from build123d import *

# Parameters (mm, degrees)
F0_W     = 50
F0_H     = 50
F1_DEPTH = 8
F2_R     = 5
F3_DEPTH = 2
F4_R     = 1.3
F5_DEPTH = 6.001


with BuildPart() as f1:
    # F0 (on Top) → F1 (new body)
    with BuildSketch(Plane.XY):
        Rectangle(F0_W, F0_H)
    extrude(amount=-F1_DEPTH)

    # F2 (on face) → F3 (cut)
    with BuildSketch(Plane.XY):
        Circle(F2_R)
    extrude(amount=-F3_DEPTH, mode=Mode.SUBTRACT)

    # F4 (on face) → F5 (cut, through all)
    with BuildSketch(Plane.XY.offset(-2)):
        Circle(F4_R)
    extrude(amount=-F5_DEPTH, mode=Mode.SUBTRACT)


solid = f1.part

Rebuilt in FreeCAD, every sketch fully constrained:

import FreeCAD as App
import Part
import Sketcher
from FreeCAD import Vector


def add_polygon(sketch, points):
    """Adds a closed chain of lines whose ends are joined by coincident constraints."""
    first, n = sketch.GeometryCount, len(points)
    for a, b in zip(points, points[1:] + points[:1]):
        sketch.addGeometry(Part.LineSegment(App.Vector(*a, 0), App.Vector(*b, 0)), False)
    for i in range(n):
        sketch.addConstraint(Sketcher.Constraint("Coincident", first + i, 2, first + (i + 1) % n, 1))

doc = App.newDocument("Part")
body = doc.addObject("PartDesign::Body", "Body")

# Sketch on XY plane
sketch1 = doc.addObject("Sketcher::SketchObject", "Sketch")
body.addObject(sketch1)
sketch1.AttachmentSupport = (doc.XY_Plane, [""])
sketch1.MapMode = "FlatFace"
add_polygon(sketch1, [(-25, 25), (-25, -25), (25, -25), (25, 25)])  # lines 0-3
sketch1.addConstraint([
    Sketcher.Constraint("Vertical", 0),
    Sketcher.Constraint("Horizontal", 1),
    Sketcher.Constraint("Vertical", 2),
    Sketcher.Constraint("Horizontal", 3),
    Sketcher.Constraint("Symmetric", 0, 2, 2, 2, -1, 1),
    Sketcher.Constraint("Equal", 3, 0),
    Sketcher.Constraint("DistanceX", 1, 1, 1, 2, 50.0),
])
pad1 = doc.addObject("PartDesign::Pad", "Pad")
body.addObject(pad1)
pad1.Profile = sketch1
pad1.Length = 8
pad1.Reversed = True

# Sketch on XY plane
sketch2 = doc.addObject("Sketcher::SketchObject", "Sketch001")
body.addObject(sketch2)
sketch2.AttachmentSupport = (doc.XY_Plane, [""])
sketch2.MapMode = "FlatFace"
sketch2.addGeometry(Part.Circle(Vector(0, 0, 0), Vector(0, 0, 1), 5), False)
sketch2.addConstraint([
    Sketcher.Constraint("Coincident", 0, 3, -1, 1),
    Sketcher.Constraint("Diameter", 0, 10.0),
])
pocket1 = doc.addObject("PartDesign::Pocket", "Pocket")
body.addObject(pocket1)
pocket1.Profile = sketch2
pocket1.Length = 2

# Sketch on XY plane
sketch3 = doc.addObject("Sketcher::SketchObject", "Sketch002")
body.addObject(sketch3)
sketch3.AttachmentSupport = (doc.XY_Plane, [""])
sketch3.MapMode = "FlatFace"
sketch3.AttachmentOffset = App.Placement(Vector(0, 0, -2), App.Rotation())
sketch3.addGeometry(Part.Circle(Vector(0, 0, 0), Vector(0, 0, 1), 1.3), False)
sketch3.addConstraint([
    Sketcher.Constraint("Coincident", 0, 3, -1, 1),
    Sketcher.Constraint("Diameter", 0, 2.6),
])
pocket2 = doc.addObject("PartDesign::Pocket", "Pocket001")
body.addObject(pocket2)
pocket2.Profile = sketch3
pocket2.Type = "ThroughAll"

doc.recompute()
